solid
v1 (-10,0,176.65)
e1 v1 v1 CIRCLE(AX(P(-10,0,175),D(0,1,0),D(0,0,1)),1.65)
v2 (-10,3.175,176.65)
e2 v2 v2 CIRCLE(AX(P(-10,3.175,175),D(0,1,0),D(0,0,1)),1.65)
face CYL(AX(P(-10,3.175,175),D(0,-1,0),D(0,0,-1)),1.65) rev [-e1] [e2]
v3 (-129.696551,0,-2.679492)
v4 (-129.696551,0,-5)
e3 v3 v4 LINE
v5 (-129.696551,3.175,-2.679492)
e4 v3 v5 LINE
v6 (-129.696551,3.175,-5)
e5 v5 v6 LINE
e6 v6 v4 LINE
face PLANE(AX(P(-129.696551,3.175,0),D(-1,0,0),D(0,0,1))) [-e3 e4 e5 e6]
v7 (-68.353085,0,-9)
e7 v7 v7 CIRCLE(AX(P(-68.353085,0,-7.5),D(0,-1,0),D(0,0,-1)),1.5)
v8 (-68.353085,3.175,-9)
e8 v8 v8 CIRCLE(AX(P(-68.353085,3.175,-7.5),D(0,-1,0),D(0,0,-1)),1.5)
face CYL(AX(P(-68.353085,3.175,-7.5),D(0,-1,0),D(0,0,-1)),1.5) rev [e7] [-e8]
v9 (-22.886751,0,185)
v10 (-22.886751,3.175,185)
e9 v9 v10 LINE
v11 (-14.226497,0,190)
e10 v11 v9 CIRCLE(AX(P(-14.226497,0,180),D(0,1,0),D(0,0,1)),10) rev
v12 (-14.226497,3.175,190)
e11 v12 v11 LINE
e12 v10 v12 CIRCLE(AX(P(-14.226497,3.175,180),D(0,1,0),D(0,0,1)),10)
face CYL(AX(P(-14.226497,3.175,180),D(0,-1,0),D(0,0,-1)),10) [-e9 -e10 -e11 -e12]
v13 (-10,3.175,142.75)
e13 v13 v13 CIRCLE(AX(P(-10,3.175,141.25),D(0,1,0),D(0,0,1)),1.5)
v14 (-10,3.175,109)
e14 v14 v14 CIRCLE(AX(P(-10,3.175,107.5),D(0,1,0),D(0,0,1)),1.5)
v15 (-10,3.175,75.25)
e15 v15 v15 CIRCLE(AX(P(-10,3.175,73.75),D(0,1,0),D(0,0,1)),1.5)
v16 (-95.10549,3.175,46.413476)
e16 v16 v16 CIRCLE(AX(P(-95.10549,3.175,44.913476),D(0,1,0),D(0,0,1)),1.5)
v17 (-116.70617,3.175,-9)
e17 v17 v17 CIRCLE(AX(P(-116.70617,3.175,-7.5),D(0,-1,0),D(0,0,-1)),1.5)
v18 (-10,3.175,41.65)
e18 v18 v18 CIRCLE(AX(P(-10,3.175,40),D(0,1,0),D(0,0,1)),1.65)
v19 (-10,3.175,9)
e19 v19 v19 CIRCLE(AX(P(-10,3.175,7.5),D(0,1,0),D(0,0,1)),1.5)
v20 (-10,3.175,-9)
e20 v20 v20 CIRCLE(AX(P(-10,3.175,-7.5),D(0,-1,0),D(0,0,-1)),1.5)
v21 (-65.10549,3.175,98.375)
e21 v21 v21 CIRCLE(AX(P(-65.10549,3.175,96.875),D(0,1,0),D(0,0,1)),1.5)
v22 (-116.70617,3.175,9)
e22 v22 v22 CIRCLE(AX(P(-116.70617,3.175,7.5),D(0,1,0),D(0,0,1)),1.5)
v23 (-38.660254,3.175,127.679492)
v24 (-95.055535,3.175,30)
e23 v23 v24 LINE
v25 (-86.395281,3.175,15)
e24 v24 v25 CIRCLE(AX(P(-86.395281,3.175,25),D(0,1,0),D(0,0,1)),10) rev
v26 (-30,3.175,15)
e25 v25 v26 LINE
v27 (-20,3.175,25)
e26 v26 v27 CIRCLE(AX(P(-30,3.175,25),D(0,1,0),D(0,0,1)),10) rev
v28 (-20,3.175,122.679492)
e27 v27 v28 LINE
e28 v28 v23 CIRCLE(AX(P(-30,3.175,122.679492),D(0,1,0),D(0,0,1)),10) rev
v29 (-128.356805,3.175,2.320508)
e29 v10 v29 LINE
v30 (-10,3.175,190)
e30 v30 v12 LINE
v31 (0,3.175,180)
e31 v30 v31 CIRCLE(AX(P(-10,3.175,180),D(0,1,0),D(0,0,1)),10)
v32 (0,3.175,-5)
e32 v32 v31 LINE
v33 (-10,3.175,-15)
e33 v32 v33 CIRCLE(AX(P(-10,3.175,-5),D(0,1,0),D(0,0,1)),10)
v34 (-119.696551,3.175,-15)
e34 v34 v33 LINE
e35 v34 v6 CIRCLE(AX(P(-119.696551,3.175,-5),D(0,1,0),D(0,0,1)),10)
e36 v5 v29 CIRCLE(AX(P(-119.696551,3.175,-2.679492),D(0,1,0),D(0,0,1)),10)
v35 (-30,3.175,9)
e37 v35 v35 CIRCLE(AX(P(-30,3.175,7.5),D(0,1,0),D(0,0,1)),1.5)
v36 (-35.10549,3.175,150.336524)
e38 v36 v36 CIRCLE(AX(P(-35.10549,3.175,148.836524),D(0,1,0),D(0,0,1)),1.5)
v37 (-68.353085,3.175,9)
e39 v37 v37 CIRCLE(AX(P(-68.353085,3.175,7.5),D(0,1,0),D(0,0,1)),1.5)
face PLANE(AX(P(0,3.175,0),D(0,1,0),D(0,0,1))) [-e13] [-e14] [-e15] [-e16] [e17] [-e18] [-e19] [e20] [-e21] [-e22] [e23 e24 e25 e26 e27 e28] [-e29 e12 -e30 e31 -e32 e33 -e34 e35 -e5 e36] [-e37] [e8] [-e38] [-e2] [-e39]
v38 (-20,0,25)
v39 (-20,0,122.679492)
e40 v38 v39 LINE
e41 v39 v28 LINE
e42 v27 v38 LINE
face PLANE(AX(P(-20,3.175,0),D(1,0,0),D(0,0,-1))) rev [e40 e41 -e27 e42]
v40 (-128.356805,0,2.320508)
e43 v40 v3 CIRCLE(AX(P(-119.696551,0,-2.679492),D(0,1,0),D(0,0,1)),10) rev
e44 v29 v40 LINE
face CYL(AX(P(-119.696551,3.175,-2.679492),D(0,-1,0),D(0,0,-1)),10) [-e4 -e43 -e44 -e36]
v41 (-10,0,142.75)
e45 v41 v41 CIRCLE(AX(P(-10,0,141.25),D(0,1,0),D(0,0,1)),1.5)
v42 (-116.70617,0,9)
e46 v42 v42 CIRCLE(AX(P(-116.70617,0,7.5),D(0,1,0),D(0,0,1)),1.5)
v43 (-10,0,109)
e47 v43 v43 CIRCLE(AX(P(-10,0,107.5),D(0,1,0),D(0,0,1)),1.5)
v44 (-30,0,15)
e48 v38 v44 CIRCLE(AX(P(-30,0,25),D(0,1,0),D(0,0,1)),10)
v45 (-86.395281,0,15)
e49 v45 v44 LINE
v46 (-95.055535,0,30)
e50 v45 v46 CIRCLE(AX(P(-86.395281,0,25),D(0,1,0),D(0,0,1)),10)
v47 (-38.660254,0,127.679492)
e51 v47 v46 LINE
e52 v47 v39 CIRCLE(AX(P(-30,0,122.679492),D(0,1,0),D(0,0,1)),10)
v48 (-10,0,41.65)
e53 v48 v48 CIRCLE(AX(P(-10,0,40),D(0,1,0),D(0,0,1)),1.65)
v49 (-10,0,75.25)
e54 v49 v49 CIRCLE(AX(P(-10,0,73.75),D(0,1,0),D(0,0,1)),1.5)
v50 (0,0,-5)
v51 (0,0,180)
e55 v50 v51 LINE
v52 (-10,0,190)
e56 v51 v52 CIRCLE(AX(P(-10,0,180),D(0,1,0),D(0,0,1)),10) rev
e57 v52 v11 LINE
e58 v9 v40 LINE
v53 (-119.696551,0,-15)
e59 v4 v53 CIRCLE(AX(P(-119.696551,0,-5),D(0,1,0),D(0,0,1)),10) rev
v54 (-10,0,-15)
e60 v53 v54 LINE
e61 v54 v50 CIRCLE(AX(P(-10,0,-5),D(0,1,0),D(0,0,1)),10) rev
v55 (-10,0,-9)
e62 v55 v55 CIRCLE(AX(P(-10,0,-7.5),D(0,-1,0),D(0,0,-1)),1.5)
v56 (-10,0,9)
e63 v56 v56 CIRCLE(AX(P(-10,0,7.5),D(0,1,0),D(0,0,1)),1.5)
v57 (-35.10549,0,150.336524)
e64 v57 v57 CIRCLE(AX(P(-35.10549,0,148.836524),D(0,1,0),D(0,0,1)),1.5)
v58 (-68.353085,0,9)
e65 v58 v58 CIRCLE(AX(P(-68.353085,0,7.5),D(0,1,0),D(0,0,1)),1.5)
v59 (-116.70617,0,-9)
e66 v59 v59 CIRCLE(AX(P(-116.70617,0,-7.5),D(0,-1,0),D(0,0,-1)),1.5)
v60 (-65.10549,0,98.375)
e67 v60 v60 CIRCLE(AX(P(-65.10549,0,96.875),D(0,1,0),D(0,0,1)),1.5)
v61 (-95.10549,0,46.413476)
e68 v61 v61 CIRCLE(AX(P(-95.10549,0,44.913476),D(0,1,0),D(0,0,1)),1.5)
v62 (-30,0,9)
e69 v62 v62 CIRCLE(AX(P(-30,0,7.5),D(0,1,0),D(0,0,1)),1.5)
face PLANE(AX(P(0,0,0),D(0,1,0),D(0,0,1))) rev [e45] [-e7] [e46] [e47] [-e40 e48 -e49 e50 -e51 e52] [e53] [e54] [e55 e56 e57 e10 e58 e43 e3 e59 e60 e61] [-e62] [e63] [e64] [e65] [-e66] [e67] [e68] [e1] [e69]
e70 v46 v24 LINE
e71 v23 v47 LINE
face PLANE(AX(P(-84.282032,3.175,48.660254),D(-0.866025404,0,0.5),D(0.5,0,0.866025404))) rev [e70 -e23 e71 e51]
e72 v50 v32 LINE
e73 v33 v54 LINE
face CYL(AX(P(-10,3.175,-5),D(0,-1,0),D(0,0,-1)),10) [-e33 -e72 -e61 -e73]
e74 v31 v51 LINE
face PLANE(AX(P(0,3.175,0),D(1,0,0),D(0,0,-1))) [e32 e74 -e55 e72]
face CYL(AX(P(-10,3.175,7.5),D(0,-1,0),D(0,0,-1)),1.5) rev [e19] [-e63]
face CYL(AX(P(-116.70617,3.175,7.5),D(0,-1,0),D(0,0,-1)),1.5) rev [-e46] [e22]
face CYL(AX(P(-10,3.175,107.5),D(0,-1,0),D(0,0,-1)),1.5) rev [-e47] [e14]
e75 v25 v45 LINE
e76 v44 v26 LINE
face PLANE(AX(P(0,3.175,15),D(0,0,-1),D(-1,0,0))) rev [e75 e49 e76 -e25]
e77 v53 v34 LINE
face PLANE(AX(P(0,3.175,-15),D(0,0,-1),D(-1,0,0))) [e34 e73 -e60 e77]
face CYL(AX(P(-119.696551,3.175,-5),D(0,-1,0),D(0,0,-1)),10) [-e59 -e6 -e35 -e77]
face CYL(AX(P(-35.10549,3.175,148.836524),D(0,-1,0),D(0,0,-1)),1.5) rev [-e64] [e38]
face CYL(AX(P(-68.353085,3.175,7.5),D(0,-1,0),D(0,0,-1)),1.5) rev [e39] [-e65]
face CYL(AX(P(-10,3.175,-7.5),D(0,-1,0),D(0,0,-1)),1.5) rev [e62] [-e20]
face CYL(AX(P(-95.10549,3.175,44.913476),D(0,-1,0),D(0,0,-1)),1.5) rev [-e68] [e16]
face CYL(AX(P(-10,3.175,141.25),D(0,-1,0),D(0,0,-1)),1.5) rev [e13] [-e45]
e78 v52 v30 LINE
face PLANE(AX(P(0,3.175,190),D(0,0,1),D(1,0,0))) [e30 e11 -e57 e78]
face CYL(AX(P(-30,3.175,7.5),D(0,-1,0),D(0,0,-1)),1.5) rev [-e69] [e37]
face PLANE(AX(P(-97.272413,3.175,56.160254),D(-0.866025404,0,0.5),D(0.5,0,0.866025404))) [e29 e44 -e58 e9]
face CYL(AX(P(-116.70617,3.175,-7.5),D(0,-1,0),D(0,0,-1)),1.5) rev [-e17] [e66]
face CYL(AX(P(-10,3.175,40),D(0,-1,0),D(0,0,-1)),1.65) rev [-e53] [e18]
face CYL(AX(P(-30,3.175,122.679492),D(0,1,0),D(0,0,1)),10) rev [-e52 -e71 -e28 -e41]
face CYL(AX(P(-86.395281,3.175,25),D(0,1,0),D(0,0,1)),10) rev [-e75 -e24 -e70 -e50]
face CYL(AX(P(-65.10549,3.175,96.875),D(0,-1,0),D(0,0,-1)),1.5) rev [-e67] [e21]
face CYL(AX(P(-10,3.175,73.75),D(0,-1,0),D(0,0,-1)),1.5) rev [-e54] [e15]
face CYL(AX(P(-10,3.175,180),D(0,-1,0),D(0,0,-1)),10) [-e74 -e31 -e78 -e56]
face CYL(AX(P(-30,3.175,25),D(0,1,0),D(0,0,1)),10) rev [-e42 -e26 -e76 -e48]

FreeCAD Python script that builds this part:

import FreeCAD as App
import Part
import Sketcher
from FreeCAD import Vector
Q = App.Units.Quantity


def edges_at(feature, points):
    """Names of the edges that pass closest to the given points."""
    edges = feature.Shape.Edges
    near = lambda p: min(range(len(edges)), key=lambda i: edges[i].distToShape(Part.Vertex(*p))[0])
    return sorted({f"Edge{near(p) + 1}" for p in points})

doc = App.newDocument("Part")
body = doc.addObject("PartDesign::Body", "Body")

sketch1 = body.newObject("Sketcher::SketchObject", "Sketch")
sketch1.AttachmentSupport = (doc.getObject("XZ_Plane"), [""])
sketch1.MapMode = "FlatFace"
sketch1.addGeometry(Part.LineSegment(Vector(-20, 190, 0), Vector(0, 190, 0)), False)
sketch1.addGeometry(Part.LineSegment(Vector(0, 190, 0), Vector(0, 0, 0)), False)
sketch1.addGeometry(Part.LineSegment(Vector(0, 0, 0), Vector(-129.7, 0, 0)), False)
sketch1.addGeometry(Part.LineSegment(Vector(-129.7, 0, 0), Vector(-20, 190, 0)), False)
sketch1.addGeometry(Part.Circle(Vector(-65.1, 96.9, 0), Vector(0, 0, 1), 1.5), False)
sketch1.addGeometry(Part.Circle(Vector(-10, 175, 0), Vector(0, 0, 1), 1.6), False)
sketch1.addGeometry(Part.Circle(Vector(-35.1, 148.8, 0), Vector(0, 0, 1), 1.5), False)
sketch1.addGeometry(Part.Circle(Vector(-10, 141.2, 0), Vector(0, 0, 1), 1.5), False)
sketch1.addGeometry(Part.Circle(Vector(-10, 107.5, 0), Vector(0, 0, 1), 1.5), False)
sketch1.addGeometry(Part.Circle(Vector(-95.1, 44.9, 0), Vector(0, 0, 1), 1.5), False)
sketch1.addGeometry(Part.Circle(Vector(-116.7, 7.5, 0), Vector(0, 0, 1), 1.5), False)
sketch1.addGeometry(Part.Circle(Vector(-68.4, 7.5, 0), Vector(0, 0, 1), 1.5), False)
sketch1.addGeometry(Part.LineSegment(Vector(-103.7, 15, 0), Vector(-20, 15, 0)), False)
sketch1.addGeometry(Part.LineSegment(Vector(-20, 15, 0), Vector(-20, 160, 0)), False)
sketch1.addGeometry(Part.LineSegment(Vector(-20, 160, 0), Vector(-103.7, 15, 0)), False)
sketch1.addGeometry(Part.Circle(Vector(-10, 73.8, 0), Vector(0, 0, 1), 1.5), False)
sketch1.addGeometry(Part.Circle(Vector(-10, 40, 0), Vector(0, 0, 1), 1.6), False)
sketch1.addGeometry(Part.Circle(Vector(-30, 7.5, 0), Vector(0, 0, 1), 1.5), False)
sketch1.addGeometry(Part.Circle(Vector(-10, 7.5, 0), Vector(0, 0, 1), 1.5), False)
sketch1.addConstraint(Sketcher.Constraint("Coincident", 0, 2, 1, 1))
sketch1.addConstraint(Sketcher.Constraint("Coincident", 1, 2, 2, 1))
sketch1.addConstraint(Sketcher.Constraint("Coincident", 2, 2, 3, 1))
sketch1.addConstraint(Sketcher.Constraint("Coincident", 3, 2, 0, 1))
sketch1.addConstraint(Sketcher.Constraint("Coincident", 12, 2, 13, 1))
sketch1.addConstraint(Sketcher.Constraint("Coincident", 13, 2, 14, 1))
sketch1.addConstraint(Sketcher.Constraint("Coincident", 14, 2, 12, 1))
sketch1.addConstraint(Sketcher.Constraint("Horizontal", 0))
sketch1.addConstraint(Sketcher.Constraint("Vertical", 1))
sketch1.addConstraint(Sketcher.Constraint("Horizontal", 2))
sketch1.addConstraint(Sketcher.Constraint("Horizontal", 12))
sketch1.addConstraint(Sketcher.Constraint("Vertical", 13))
sketch1.addConstraint(Sketcher.Constraint("Coincident", 1, 2, -1, 1))
sketch1.addConstraint(Sketcher.Constraint("Equal", 4, 6))
sketch1.addConstraint(Sketcher.Constraint("Equal", 6, 7))
sketch1.addConstraint(Sketcher.Constraint("Equal", 7, 8))
sketch1.addConstraint(Sketcher.Constraint("Equal", 8, 9))
sketch1.addConstraint(Sketcher.Constraint("Equal", 9, 10))
sketch1.addConstraint(Sketcher.Constraint("Equal", 10, 11))
sketch1.addConstraint(Sketcher.Constraint("Equal", 11, 15))
sketch1.addConstraint(Sketcher.Constraint("Equal", 5, 16))
sketch1.addConstraint(Sketcher.Constraint("Equal", 15, 17))
sketch1.addConstraint(Sketcher.Constraint("Equal", 17, 18))
sketch1.addConstraint(Sketcher.Constraint("Parallel", 3, 14))
sketch1.addConstraint(Sketcher.Constraint("Horizontal", 10, 3, 11, 3))
sketch1.addConstraint(Sketcher.Constraint("Horizontal", 11, 3, 17, 3))
sketch1.addConstraint(Sketcher.Constraint("Horizontal", 17, 3, 18, 3))
sketch1.addConstraint(Sketcher.Constraint("Vertical", 5, 3, 7, 3))
sketch1.addConstraint(Sketcher.Constraint("Vertical", 7, 3, 8, 3))
sketch1.addConstraint(Sketcher.Constraint("Vertical", 8, 3, 15, 3))
sketch1.addConstraint(Sketcher.Constraint("Vertical", 15, 3, 16, 3))
sketch1.addConstraint(Sketcher.Constraint("Vertical", 16, 3, 18, 3))
sketch1.addConstraint(Sketcher.Constraint("Vertical", 3, 2, 12, 2))
sketch1.addConstraint(Sketcher.Constraint("Diameter", 4, 3.0))
sketch1.addConstraint(Sketcher.Constraint("Diameter", 5, 3.3))
sketch1.addConstraint(Sketcher.Constraint("DistanceX", 0, 1, 0, 2, 20.0))
sketch1.addConstraint(Sketcher.Constraint("DistanceY", 1, 2, 1, 1, 190.0))
sketch1.addConstraint(Sketcher.Constraint("DistanceY", 13, 1, 13, 2, 145.0))
sketch1.addConstraint(Sketcher.Constraint("Angle", 3, Q("60 deg")))
sketch1.addConstraint(Sketcher.Constraint("DistanceX", 5, 3, -1, 1, 10.0))
sketch1.addConstraint(Sketcher.Constraint("DistanceY", -1, 1, 5, 3, 175.0))
sketch1.addConstraint(Sketcher.Constraint("DistanceY", -1, 1, 16, 3, 40.0))
sketch1.addConstraint(Sketcher.Constraint("DistanceX", 17, 3, -1, 1, 30.0))
sketch1.addConstraint(Sketcher.Constraint("DistanceY", -1, 1, 12, 2, 15.0))
sketch1.addConstraint(Sketcher.Constraint("DistanceX", 4, 3, 6, 3, 30.0))
sketch1.addConstraint(Sketcher.Constraint("DistanceX", 9, 3, 4, 3, 30.0))
sketch1.addConstraint(Sketcher.Constraint("DistanceY", 10, 3, 8, 3, 100.0))
sketch1.addConstraint(Sketcher.Constraint("DistanceY", -1, 1, 8, 3, 107.5))
sketch1.addConstraint(Sketcher.Constraint("DistanceY", 15, 3, 7, 3, 67.5))
sketch1.addConstraint(Sketcher.Constraint("DistanceY", -1, 1, 7, 3, 141.25))
sketch1.addConstraint(Sketcher.Constraint("DistanceY", -1, 1, 4, 3, 96.875))
sketch1.addConstraint(Sketcher.Constraint("DistanceX", 14, 2, 9, 3, 8.610299))
sketch1.addConstraint(Sketcher.Constraint("DistanceX", 10, 3, -1, 1, 116.70617))
sketch1.addConstraint(Sketcher.Constraint("DistanceY", 9, 3, 6, 3, 103.923048))
sketch1.addConstraint(Sketcher.Constraint("DistanceY", -1, 1, 6, 3, 148.836524))
sketch1.addConstraint(Sketcher.Constraint("DistanceX", 11, 3, -1, 1, 68.353085))
pad1 = body.newObject("PartDesign::Pad", "Pad")
pad1.Profile = sketch1
pad1.Length = 3.175
pad1.Reversed = True

sketch2 = body.newObject("Sketcher::SketchObject", "Sketch001")
sketch2.AttachmentSupport = (doc.getObject("XZ_Plane"), [""])
sketch2.MapMode = "FlatFace"
sketch2.addGeometry(Part.LineSegment(Vector(-129.7, 0, 0), Vector(-129.7, -15, 0)), False)
sketch2.addGeometry(Part.LineSegment(Vector(-129.7, -15, 0), Vector(0, -15, 0)), False)
sketch2.addGeometry(Part.LineSegment(Vector(0, -15, 0), Vector(0, 0, 0)), False)
sketch2.addGeometry(Part.LineSegment(Vector(0, 0, 0), Vector(-129.7, 0, 0)), False)
sketch2.addGeometry(Part.Circle(Vector(-116.7, -7.5, 0), Vector(0, 0, 1), 1.5), False)
sketch2.addGeometry(Part.Circle(Vector(-68.4, -7.5, 0), Vector(0, 0, 1), 1.5), False)
sketch2.addGeometry(Part.Circle(Vector(-10, -7.5, 0), Vector(0, 0, 1), 1.5), False)
sketch2.addConstraint(Sketcher.Constraint("Coincident", 0, 2, 1, 1))
sketch2.addConstraint(Sketcher.Constraint("Coincident", 1, 2, 2, 1))
sketch2.addConstraint(Sketcher.Constraint("Coincident", 2, 2, 3, 1))
sketch2.addConstraint(Sketcher.Constraint("Coincident", 3, 2, 0, 1))
sketch2.addConstraint(Sketcher.Constraint("Vertical", 0))
sketch2.addConstraint(Sketcher.Constraint("Horizontal", 1))
sketch2.addConstraint(Sketcher.Constraint("Vertical", 2))
sketch2.addConstraint(Sketcher.Constraint("Horizontal", 3))
sketch2.addConstraint(Sketcher.Constraint("Coincident", 2, 2, -1, 1))
sketch2.addConstraint(Sketcher.Constraint("Equal", 4, 5))
sketch2.addConstraint(Sketcher.Constraint("Equal", 5, 6))
sketch2.addConstraint(Sketcher.Constraint("Horizontal", 4, 3, 5, 3))
sketch2.addConstraint(Sketcher.Constraint("Horizontal", 5, 3, 6, 3))
sketch2.addConstraint(Sketcher.Constraint("Diameter", 4, 3.0))
sketch2.addConstraint(Sketcher.Constraint("DistanceY", 0, 2, 0, 1, 15.0))
sketch2.addConstraint(Sketcher.Constraint("DistanceX", 6, 3, -1, 1, 10.0))
sketch2.addConstraint(Sketcher.Constraint("DistanceY", 4, 3, -1, 1, 7.5))
sketch2.addConstraint(Sketcher.Constraint("DistanceX", 1, 1, 1, 2, 129.696551))
sketch2.addConstraint(Sketcher.Constraint("DistanceX", 4, 3, -1, 1, 116.70617))
sketch2.addConstraint(Sketcher.Constraint("DistanceX", 5, 3, -1, 1, 68.353085))
pad2 = body.newObject("PartDesign::Pad", "Pad001")
pad2.Profile = sketch2
pad2.Length = 3.175
pad2.Reversed = True
doc.recompute()

fillet = body.newObject("PartDesign::Fillet", "Fillet")
fillet.Base = (pad2, edges_at(pad2, [
    (0, 1.587, 190),
    (-20, 1.587, 190),
    (-129.697, 1.587, 0),
    (-103.716, 1.587, 15),
    (-20, 1.587, 160),
    (-20, 1.587, 15),
    (0, 1.587, -15),
    (-129.697, 1.587, -15),
]))
fillet.Radius = 10

doc.recompute()
